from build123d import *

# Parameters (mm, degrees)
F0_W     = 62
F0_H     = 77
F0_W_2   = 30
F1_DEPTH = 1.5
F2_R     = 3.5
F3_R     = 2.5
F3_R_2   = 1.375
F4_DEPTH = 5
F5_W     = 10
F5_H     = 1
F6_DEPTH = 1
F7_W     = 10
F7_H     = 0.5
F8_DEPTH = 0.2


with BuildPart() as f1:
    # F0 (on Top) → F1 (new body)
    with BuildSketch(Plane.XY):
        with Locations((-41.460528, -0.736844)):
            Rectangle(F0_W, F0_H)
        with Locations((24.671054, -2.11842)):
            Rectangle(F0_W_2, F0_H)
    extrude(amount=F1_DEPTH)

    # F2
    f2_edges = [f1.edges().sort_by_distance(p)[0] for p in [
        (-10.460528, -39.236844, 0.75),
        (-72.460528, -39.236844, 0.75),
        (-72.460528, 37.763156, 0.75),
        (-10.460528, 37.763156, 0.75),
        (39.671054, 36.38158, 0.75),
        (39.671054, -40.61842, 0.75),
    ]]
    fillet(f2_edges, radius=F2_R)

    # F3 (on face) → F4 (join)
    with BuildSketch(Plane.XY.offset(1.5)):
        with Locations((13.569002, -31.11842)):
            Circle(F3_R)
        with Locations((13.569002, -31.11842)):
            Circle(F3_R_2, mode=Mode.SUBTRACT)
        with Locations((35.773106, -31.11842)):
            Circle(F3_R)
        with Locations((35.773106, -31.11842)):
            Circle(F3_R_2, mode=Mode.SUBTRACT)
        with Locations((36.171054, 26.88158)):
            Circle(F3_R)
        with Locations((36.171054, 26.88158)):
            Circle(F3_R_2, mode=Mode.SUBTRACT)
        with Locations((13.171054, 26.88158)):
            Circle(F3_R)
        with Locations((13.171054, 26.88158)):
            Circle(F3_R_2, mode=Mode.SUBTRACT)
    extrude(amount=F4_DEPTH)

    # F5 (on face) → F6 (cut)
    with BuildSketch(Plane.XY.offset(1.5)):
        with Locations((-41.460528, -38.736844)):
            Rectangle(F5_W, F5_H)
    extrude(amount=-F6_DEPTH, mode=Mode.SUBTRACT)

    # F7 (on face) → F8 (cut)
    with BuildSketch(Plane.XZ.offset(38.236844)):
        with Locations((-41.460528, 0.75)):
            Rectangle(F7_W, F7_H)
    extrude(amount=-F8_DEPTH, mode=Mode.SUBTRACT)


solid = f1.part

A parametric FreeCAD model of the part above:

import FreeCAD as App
import Part
import Sketcher


def edges_at(feature, points):
    """Names of the edges that pass closest to the given points."""
    edges = feature.Shape.Edges
    near = lambda p: min(range(len(edges)), key=lambda i: edges[i].distToShape(Part.Vertex(*p))[0])
    return sorted({f"Edge{near(p) + 1}" for p in points})

doc = App.newDocument("Part")
body = doc.addObject("PartDesign::Body", "Body")
body.AllowCompound = True

sketch1 = doc.addObject("Sketcher::SketchObject", "Sketch")
body.addObject(sketch1)
sketch1.AttachmentSupport = (doc.XY_Plane, [""])
sketch1.MapMode = "FlatFace"
sketch1.addGeometry(Part.LineSegment(App.Vector(-72, 38, 0), App.Vector(-72, -39, 0)), False)
sketch1.addGeometry(Part.LineSegment(App.Vector(-72, -39, 0), App.Vector(-10, -39, 0)), False)
sketch1.addGeometry(Part.LineSegment(App.Vector(-10, -39, 0), App.Vector(-10, 38, 0)), False)
sketch1.addGeometry(Part.LineSegment(App.Vector(-10, 38, 0), App.Vector(-72, 38, 0)), False)
sketch1.addGeometry(Part.LineSegment(App.Vector(10, 36, 0), App.Vector(10, -41, 0)), False)
sketch1.addGeometry(Part.LineSegment(App.Vector(10, -41, 0), App.Vector(40, -41, 0)), False)
sketch1.addGeometry(Part.LineSegment(App.Vector(40, -41, 0), App.Vector(40, 36, 0)), False)
sketch1.addGeometry(Part.LineSegment(App.Vector(40, 36, 0), App.Vector(10, 36, 0)), False)
sketch1.addConstraint(Sketcher.Constraint("Coincident", 0, 2, 1, 1))
sketch1.addConstraint(Sketcher.Constraint("Coincident", 1, 2, 2, 1))
sketch1.addConstraint(Sketcher.Constraint("Coincident", 2, 2, 3, 1))
sketch1.addConstraint(Sketcher.Constraint("Coincident", 3, 2, 0, 1))
sketch1.addConstraint(Sketcher.Constraint("Coincident", 4, 2, 5, 1))
sketch1.addConstraint(Sketcher.Constraint("Coincident", 5, 2, 6, 1))
sketch1.addConstraint(Sketcher.Constraint("Coincident", 6, 2, 7, 1))
sketch1.addConstraint(Sketcher.Constraint("Coincident", 7, 2, 4, 1))
sketch1.addConstraint(Sketcher.Constraint("Vertical", 0))
sketch1.addConstraint(Sketcher.Constraint("Horizontal", 1))
sketch1.addConstraint(Sketcher.Constraint("Vertical", 2))
sketch1.addConstraint(Sketcher.Constraint("Horizontal", 3))
sketch1.addConstraint(Sketcher.Constraint("Vertical", 4))
sketch1.addConstraint(Sketcher.Constraint("Horizontal", 5))
sketch1.addConstraint(Sketcher.Constraint("Vertical", 6))
sketch1.addConstraint(Sketcher.Constraint("Horizontal", 7))
sketch1.addConstraint(Sketcher.Constraint("Equal", 2, 4))
sketch1.addConstraint(Sketcher.Constraint("DistanceX", 1, 1, 1, 2, 62.0))
sketch1.addConstraint(Sketcher.Constraint("DistanceX", 5, 1, 5, 2, 30.0))
sketch1.addConstraint(Sketcher.Constraint("DistanceY", 0, 2, 0, 1, 77.0))
sketch1.addConstraint(Sketcher.Constraint("DistanceY", 4, 2, -1, 1, 40.61842))
sketch1.addConstraint(Sketcher.Constraint("DistanceX", 0, 2, 4, 2, 82.131582))
sketch1.addConstraint(Sketcher.Constraint("DistanceX", 0, 2, -1, 1, 72.460528))
sketch1.addConstraint(Sketcher.Constraint("DistanceY", 0, 2, -1, 1, 39.236844))
pad1 = doc.addObject("PartDesign::Pad", "Pad")
body.addObject(pad1)
pad1.Profile = sketch1
pad1.Length = 1.5
doc.recompute()

fillet = doc.addObject("PartDesign::Fillet", "Fillet")
body.addObject(fillet)
fillet.Base = (pad1, edges_at(pad1, [
    (-10.461, -39.237, 0.75),
    (-72.461, -39.237, 0.75),
    (-72.461, 37.763, 0.75),
    (-10.461, 37.763, 0.75),
    (39.671, 36.382, 0.75),
    (39.671, -40.618, 0.75),
]))
fillet.Radius = 3.5

sketch2 = doc.addObject("Sketcher::SketchObject", "Sketch001")
body.addObject(sketch2)
sketch2.AttachmentSupport = (doc.XY_Plane, [""])
sketch2.MapMode = "FlatFace"
sketch2.AttachmentOffset = App.Placement(App.Vector(0, 0, 1.5), App.Rotation())
sketch2.addGeometry(Part.Circle(App.Vector(13.6, -31.1, 0), App.Vector(0, 0, 1), 2.5), False)
sketch2.addGeometry(Part.Circle(App.Vector(13.6, -31.1, 0), App.Vector(0, 0, 1), 1.4), False)
sketch2.addGeometry(Part.Circle(App.Vector(35.8, -31.1, 0), App.Vector(0, 0, 1), 2.5), False)
sketch2.addGeometry(Part.Circle(App.Vector(35.8, -31.1, 0), App.Vector(0, 0, 1), 1.4), False)
sketch2.addGeometry(Part.Circle(App.Vector(36.2, 26.9, 0), App.Vector(0, 0, 1), 2.5), False)
sketch2.addGeometry(Part.Circle(App.Vector(36.2, 26.9, 0), App.Vector(0, 0, 1), 1.4), False)
sketch2.addGeometry(Part.Circle(App.Vector(13.2, 26.9, 0), App.Vector(0, 0, 1), 2.5), False)
sketch2.addGeometry(Part.Circle(App.Vector(13.2, 26.9, 0), App.Vector(0, 0, 1), 1.4), False)
sketch2.addConstraint(Sketcher.Constraint("Coincident", 1, 3, 0, 3))
sketch2.addConstraint(Sketcher.Constraint("Coincident", 3, 3, 2, 3))
sketch2.addConstraint(Sketcher.Constraint("Coincident", 5, 3, 4, 3))
sketch2.addConstraint(Sketcher.Constraint("Coincident", 7, 3, 6, 3))
sketch2.addConstraint(Sketcher.Constraint("Equal", 0, 2))
sketch2.addConstraint(Sketcher.Constraint("Equal", 1, 3))
sketch2.addConstraint(Sketcher.Constraint("Equal", 2, 4))
sketch2.addConstraint(Sketcher.Constraint("Equal", 3, 5))
sketch2.addConstraint(Sketcher.Constraint("Equal", 4, 6))
sketch2.addConstraint(Sketcher.Constraint("Equal", 5, 7))
sketch2.addConstraint(Sketcher.Constraint("Horizontal", 1, 3, 2, 3))
sketch2.addConstraint(Sketcher.Constraint("Horizontal", 5, 3, 6, 3))
sketch2.addConstraint(Sketcher.Constraint("Diameter", 0, 5.0))
sketch2.addConstraint(Sketcher.Constraint("Diameter", 1, 2.75))
sketch2.addConstraint(Sketcher.Constraint("DistanceY", 2, 3, 4, 3, 58.0))
sketch2.addConstraint(Sketcher.Constraint("DistanceX", 6, 3, 4, 3, 23.0))
sketch2.addConstraint(Sketcher.Constraint("DistanceX", -1, 1, 0, 3, 13.569002))
sketch2.addConstraint(Sketcher.Constraint("DistanceY", 0, 3, -1, 1, 31.11842))
sketch2.addConstraint(Sketcher.Constraint("DistanceX", -1, 1, 2, 3, 35.773106))
sketch2.addConstraint(Sketcher.Constraint("DistanceX", -1, 1, 4, 3, 36.171054))
pad2 = doc.addObject("PartDesign::Pad", "Pad001")
body.addObject(pad2)
pad2.Profile = sketch2
pad2.Length = 5

sketch3 = doc.addObject("Sketcher::SketchObject", "Sketch002")
body.addObject(sketch3)
sketch3.AttachmentSupport = (doc.XY_Plane, [""])
sketch3.MapMode = "FlatFace"
sketch3.AttachmentOffset = App.Placement(App.Vector(0, 0, 1.5), App.Rotation())
sketch3.addGeometry(Part.LineSegment(App.Vector(-46.5, -38.2, 0), App.Vector(-46.5, -39.2, 0)), False)
sketch3.addGeometry(Part.LineSegment(App.Vector(-46.5, -39.2, 0), App.Vector(-36.5, -39.2, 0)), False)
sketch3.addGeometry(Part.LineSegment(App.Vector(-36.5, -39.2, 0), App.Vector(-36.5, -38.2, 0)), False)
sketch3.addGeometry(Part.LineSegment(App.Vector(-36.5, -38.2, 0), App.Vector(-46.5, -38.2, 0)), False)
sketch3.addConstraint(Sketcher.Constraint("Coincident", 0, 2, 1, 1))
sketch3.addConstraint(Sketcher.Constraint("Coincident", 1, 2, 2, 1))
sketch3.addConstraint(Sketcher.Constraint("Coincident", 2, 2, 3, 1))
sketch3.addConstraint(Sketcher.Constraint("Coincident", 3, 2, 0, 1))
sketch3.addConstraint(Sketcher.Constraint("Vertical", 0))
sketch3.addConstraint(Sketcher.Constraint("Horizontal", 1))
sketch3.addConstraint(Sketcher.Constraint("Vertical", 2))
sketch3.addConstraint(Sketcher.Constraint("Horizontal", 3))
sketch3.addConstraint(Sketcher.Constraint("DistanceX", 1, 1, 1, 2, 10.0))
sketch3.addConstraint(Sketcher.Constraint("DistanceY", 0, 2, 0, 1, 1.0))
sketch3.addConstraint(Sketcher.Constraint("DistanceX", 0, 2, -1, 1, 46.460528))
sketch3.addConstraint(Sketcher.Constraint("DistanceY", 0, 2, -1, 1, 39.236844))
pocket1 = doc.addObject("PartDesign::Pocket", "Pocket")
body.addObject(pocket1)
pocket1.Profile = sketch3
pocket1.Length = 1

sketch4 = doc.addObject("Sketcher::SketchObject", "Sketch003")
body.addObject(sketch4)
sketch4.AttachmentSupport = (doc.XZ_Plane, [""])
sketch4.MapMode = "FlatFace"
sketch4.AttachmentOffset = App.Placement(App.Vector(0, 0, 38.236844), App.Rotation())
sketch4.addGeometry(Part.LineSegment(App.Vector(-46.5, 1, 0), App.Vector(-46.5, 0.5, 0)), False)
sketch4.addGeometry(Part.LineSegment(App.Vector(-46.5, 0.5, 0), App.Vector(-36.5, 0.5, 0)), False)
sketch4.addGeometry(Part.LineSegment(App.Vector(-36.5, 0.5, 0), App.Vector(-36.5, 1, 0)), False)
sketch4.addGeometry(Part.LineSegment(App.Vector(-36.5, 1, 0), App.Vector(-46.5, 1, 0)), False)
sketch4.addConstraint(Sketcher.Constraint("Coincident", 0, 2, 1, 1))
sketch4.addConstraint(Sketcher.Constraint("Coincident", 1, 2, 2, 1))
sketch4.addConstraint(Sketcher.Constraint("Coincident", 2, 2, 3, 1))
sketch4.addConstraint(Sketcher.Constraint("Coincident", 3, 2, 0, 1))
sketch4.addConstraint(Sketcher.Constraint("Vertical", 0))
sketch4.addConstraint(Sketcher.Constraint("Horizontal", 1))
sketch4.addConstraint(Sketcher.Constraint("Vertical", 2))
sketch4.addConstraint(Sketcher.Constraint("Horizontal", 3))
sketch4.addConstraint(Sketcher.Constraint("DistanceX", 1, 1, 1, 2, 10.0))
sketch4.addConstraint(Sketcher.Constraint("DistanceY", 0, 2, 0, 1, 0.5))
sketch4.addConstraint(Sketcher.Constraint("DistanceY", -1, 1, 2, 2, 1.0))
sketch4.addConstraint(Sketcher.Constraint("DistanceX", 0, 2, -1, 1, 46.460528))
pocket2 = doc.addObject("PartDesign::Pocket", "Pocket001")
body.addObject(pocket2)
pocket2.Profile = sketch4
pocket2.Length = 0.2

doc.recompute()
